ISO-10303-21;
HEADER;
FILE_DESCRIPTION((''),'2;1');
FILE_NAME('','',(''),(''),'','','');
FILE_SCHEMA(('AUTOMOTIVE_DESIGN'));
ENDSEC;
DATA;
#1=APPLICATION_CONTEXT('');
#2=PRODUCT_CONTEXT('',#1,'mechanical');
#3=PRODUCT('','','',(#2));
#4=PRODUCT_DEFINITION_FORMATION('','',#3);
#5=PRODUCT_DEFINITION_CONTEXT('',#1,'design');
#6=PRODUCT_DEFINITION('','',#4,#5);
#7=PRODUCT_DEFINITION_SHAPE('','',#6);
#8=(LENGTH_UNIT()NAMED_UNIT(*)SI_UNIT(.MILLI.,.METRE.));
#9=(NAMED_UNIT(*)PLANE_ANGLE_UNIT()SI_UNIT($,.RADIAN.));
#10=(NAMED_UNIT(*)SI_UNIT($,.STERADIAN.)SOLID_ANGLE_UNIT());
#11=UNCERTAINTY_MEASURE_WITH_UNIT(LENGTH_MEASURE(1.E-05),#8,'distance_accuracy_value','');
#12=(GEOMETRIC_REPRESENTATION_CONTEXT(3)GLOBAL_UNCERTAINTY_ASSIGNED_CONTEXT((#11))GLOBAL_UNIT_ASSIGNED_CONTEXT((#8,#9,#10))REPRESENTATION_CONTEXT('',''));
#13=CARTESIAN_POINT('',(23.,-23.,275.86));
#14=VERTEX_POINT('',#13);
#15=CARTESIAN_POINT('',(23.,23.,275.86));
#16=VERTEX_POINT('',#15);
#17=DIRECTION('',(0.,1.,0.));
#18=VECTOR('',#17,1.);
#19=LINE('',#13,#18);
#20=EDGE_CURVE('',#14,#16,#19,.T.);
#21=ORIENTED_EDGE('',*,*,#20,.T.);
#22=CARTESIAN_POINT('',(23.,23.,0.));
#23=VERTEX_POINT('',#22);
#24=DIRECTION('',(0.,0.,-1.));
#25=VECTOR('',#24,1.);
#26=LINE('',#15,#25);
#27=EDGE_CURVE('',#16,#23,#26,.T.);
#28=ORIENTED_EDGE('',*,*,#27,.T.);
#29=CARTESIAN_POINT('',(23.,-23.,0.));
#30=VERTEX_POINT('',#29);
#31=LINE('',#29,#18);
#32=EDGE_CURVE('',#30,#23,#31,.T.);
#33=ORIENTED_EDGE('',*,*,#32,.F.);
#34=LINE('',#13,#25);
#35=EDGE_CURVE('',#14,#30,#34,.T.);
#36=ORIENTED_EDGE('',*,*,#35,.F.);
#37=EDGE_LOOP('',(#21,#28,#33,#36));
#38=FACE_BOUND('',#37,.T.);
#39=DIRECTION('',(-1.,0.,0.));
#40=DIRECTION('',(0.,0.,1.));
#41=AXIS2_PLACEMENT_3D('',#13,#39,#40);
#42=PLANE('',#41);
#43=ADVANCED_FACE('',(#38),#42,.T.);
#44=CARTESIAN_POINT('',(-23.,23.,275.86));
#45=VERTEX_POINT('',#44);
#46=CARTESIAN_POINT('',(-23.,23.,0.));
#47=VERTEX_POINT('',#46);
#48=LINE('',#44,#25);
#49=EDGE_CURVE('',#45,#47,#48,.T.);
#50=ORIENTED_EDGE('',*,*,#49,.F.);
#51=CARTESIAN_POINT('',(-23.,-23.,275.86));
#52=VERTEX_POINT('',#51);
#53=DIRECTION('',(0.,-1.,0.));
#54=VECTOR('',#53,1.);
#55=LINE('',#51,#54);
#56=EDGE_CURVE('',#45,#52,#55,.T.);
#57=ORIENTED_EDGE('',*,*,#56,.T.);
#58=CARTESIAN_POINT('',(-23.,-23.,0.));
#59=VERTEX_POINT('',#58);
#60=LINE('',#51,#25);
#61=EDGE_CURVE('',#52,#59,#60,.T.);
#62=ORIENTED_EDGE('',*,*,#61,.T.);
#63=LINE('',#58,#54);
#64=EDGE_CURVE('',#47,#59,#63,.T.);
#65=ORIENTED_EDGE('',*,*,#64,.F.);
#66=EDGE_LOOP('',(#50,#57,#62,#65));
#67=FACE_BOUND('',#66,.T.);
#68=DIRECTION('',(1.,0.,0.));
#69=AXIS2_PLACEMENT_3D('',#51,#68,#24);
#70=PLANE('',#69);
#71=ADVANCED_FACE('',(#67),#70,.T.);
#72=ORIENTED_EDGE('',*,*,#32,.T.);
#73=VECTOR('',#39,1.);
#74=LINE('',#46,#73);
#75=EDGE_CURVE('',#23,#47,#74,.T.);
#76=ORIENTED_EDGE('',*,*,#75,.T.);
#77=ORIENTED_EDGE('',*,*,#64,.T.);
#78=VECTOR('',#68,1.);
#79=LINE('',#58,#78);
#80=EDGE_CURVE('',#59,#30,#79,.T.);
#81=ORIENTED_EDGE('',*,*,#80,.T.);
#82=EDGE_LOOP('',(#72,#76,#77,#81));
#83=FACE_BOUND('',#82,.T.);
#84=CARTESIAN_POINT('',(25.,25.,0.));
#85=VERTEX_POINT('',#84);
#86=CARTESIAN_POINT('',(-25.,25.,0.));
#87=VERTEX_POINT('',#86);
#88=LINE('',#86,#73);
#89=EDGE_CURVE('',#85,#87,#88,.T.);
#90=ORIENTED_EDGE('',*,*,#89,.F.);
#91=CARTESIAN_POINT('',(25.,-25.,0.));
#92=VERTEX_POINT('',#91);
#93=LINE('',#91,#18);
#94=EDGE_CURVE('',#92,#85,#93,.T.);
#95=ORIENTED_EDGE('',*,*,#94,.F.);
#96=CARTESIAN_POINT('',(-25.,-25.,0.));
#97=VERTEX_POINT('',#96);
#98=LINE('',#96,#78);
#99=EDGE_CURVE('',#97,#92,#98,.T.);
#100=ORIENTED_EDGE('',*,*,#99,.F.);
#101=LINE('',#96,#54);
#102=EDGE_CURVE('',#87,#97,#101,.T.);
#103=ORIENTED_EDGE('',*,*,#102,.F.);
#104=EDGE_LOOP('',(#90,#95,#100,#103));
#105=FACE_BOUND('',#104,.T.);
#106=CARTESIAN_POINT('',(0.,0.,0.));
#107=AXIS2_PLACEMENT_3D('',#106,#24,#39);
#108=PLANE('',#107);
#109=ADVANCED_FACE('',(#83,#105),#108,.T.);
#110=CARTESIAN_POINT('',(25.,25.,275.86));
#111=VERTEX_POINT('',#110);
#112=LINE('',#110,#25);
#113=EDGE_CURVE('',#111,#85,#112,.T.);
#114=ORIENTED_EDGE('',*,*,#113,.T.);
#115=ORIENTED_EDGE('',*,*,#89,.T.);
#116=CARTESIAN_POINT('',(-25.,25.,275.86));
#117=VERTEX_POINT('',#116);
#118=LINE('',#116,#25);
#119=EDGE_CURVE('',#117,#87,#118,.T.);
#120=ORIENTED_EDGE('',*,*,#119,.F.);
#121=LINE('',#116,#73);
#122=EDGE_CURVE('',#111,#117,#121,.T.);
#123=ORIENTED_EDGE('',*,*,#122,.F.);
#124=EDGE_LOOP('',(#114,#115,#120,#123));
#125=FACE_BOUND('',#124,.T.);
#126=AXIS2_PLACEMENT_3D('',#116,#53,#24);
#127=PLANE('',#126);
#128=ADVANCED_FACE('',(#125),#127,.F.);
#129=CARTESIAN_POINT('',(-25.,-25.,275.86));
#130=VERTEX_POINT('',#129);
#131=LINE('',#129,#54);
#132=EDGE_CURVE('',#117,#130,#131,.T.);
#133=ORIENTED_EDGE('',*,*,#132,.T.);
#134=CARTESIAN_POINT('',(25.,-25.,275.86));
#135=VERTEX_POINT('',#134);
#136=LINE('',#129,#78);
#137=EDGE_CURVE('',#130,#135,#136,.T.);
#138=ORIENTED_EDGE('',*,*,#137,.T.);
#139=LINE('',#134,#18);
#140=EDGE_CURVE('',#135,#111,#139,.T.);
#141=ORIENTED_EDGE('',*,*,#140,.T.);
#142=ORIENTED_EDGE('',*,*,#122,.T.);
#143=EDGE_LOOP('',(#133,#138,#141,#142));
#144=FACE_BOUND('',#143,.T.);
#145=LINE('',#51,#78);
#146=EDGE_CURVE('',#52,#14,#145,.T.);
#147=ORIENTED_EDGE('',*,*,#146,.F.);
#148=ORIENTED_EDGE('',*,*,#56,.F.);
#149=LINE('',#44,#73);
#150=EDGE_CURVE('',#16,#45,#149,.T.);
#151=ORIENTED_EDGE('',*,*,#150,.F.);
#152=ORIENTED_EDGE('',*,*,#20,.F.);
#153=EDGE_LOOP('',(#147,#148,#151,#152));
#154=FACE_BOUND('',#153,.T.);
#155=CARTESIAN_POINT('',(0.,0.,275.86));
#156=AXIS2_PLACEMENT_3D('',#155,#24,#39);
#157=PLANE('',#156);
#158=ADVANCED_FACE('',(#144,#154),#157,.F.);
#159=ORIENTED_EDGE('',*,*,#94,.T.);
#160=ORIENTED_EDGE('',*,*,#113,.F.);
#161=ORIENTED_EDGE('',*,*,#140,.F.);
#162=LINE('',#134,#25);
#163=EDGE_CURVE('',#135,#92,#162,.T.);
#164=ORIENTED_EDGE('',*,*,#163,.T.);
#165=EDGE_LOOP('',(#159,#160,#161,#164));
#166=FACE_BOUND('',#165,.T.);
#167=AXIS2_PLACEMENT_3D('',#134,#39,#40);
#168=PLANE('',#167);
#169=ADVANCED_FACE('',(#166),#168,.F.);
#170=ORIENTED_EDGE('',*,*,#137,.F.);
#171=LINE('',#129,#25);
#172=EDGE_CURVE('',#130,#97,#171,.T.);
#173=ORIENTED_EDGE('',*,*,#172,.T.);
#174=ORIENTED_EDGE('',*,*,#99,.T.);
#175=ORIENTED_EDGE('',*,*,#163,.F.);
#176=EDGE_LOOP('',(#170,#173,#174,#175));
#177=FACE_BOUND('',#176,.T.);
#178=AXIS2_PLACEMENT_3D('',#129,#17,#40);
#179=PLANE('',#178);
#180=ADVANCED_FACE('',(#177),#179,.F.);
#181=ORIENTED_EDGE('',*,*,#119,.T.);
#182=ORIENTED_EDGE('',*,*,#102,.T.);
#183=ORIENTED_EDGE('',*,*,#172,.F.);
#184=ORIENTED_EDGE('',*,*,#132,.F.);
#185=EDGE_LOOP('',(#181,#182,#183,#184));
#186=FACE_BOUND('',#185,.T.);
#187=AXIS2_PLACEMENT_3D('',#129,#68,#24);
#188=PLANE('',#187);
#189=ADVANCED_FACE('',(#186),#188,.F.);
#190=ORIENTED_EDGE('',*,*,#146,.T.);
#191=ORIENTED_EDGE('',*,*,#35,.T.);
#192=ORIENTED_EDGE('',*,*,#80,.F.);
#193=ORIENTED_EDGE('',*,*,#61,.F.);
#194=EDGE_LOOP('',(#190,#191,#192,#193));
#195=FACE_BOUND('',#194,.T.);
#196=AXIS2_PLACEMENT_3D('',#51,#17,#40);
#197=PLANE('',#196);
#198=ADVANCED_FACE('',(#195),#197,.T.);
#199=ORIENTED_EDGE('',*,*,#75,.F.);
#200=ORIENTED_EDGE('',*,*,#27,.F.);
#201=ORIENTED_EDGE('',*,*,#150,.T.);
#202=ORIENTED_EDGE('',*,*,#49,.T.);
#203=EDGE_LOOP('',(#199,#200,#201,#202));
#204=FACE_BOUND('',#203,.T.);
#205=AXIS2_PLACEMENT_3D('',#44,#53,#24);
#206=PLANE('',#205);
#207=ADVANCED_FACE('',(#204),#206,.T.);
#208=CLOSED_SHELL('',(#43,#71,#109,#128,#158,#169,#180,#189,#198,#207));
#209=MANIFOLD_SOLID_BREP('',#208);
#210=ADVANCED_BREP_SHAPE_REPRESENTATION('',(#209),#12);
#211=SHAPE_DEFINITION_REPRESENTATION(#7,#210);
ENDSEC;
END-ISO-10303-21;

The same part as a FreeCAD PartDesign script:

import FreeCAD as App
import Part
import Sketcher
from FreeCAD import Vector
Q = App.Units.Quantity


def add_polygon(sketch, points):
    """Adds a closed chain of lines whose ends are joined by coincident constraints."""
    first, n = sketch.GeometryCount, len(points)
    for a, b in zip(points, points[1:] + points[:1]):
        sketch.addGeometry(Part.LineSegment(App.Vector(*a, 0), App.Vector(*b, 0)), False)
    for i in range(n):
        sketch.addConstraint(Sketcher.Constraint("Coincident", first + i, 2, first + (i + 1) % n, 1))

doc = App.newDocument("Part")
body = doc.addObject("PartDesign::Body", "Body")

sketch1 = body.newObject("Sketcher::SketchObject", "Sketch")
sketch1.AttachmentSupport = (doc.getObject("XY_Plane"), [""])
sketch1.MapMode = "FlatFace"
add_polygon(sketch1, [(-25, 25), (-25, -25), (25, -25), (25, 25)])
add_polygon(sketch1, [(23, -23), (-23, -23), (-23, 23), (23, 23)])
sketch1.addConstraint([
    Sketcher.Constraint("Vertical", 0),
    Sketcher.Constraint("Horizontal", 1),
    Sketcher.Constraint("Vertical", 2),
    Sketcher.Constraint("Horizontal", 3),
    Sketcher.Constraint("Horizontal", 4),
    Sketcher.Constraint("Vertical", 5),
    Sketcher.Constraint("Horizontal", 6),
    Sketcher.Constraint("Vertical", 7),
    Sketcher.Constraint("Symmetric", 0, 2, 2, 2, -1, 1),
    Sketcher.Constraint("Symmetric", 4, 2, 6, 2, -1, 1),
    Sketcher.Constraint("Equal", 3, 0),
    Sketcher.Constraint("Equal", 6, 5),
    Sketcher.Constraint("DistanceX", 1, 1, 1, 2, Q("50 mm")),
    Sketcher.Constraint("DistanceX", 4, 2, 4, 1, Q("46 mm")),
])
pad1 = body.newObject("PartDesign::Pad", "Pad")
pad1.Profile = sketch1
pad1.Length = 275.86

doc.recompute()
